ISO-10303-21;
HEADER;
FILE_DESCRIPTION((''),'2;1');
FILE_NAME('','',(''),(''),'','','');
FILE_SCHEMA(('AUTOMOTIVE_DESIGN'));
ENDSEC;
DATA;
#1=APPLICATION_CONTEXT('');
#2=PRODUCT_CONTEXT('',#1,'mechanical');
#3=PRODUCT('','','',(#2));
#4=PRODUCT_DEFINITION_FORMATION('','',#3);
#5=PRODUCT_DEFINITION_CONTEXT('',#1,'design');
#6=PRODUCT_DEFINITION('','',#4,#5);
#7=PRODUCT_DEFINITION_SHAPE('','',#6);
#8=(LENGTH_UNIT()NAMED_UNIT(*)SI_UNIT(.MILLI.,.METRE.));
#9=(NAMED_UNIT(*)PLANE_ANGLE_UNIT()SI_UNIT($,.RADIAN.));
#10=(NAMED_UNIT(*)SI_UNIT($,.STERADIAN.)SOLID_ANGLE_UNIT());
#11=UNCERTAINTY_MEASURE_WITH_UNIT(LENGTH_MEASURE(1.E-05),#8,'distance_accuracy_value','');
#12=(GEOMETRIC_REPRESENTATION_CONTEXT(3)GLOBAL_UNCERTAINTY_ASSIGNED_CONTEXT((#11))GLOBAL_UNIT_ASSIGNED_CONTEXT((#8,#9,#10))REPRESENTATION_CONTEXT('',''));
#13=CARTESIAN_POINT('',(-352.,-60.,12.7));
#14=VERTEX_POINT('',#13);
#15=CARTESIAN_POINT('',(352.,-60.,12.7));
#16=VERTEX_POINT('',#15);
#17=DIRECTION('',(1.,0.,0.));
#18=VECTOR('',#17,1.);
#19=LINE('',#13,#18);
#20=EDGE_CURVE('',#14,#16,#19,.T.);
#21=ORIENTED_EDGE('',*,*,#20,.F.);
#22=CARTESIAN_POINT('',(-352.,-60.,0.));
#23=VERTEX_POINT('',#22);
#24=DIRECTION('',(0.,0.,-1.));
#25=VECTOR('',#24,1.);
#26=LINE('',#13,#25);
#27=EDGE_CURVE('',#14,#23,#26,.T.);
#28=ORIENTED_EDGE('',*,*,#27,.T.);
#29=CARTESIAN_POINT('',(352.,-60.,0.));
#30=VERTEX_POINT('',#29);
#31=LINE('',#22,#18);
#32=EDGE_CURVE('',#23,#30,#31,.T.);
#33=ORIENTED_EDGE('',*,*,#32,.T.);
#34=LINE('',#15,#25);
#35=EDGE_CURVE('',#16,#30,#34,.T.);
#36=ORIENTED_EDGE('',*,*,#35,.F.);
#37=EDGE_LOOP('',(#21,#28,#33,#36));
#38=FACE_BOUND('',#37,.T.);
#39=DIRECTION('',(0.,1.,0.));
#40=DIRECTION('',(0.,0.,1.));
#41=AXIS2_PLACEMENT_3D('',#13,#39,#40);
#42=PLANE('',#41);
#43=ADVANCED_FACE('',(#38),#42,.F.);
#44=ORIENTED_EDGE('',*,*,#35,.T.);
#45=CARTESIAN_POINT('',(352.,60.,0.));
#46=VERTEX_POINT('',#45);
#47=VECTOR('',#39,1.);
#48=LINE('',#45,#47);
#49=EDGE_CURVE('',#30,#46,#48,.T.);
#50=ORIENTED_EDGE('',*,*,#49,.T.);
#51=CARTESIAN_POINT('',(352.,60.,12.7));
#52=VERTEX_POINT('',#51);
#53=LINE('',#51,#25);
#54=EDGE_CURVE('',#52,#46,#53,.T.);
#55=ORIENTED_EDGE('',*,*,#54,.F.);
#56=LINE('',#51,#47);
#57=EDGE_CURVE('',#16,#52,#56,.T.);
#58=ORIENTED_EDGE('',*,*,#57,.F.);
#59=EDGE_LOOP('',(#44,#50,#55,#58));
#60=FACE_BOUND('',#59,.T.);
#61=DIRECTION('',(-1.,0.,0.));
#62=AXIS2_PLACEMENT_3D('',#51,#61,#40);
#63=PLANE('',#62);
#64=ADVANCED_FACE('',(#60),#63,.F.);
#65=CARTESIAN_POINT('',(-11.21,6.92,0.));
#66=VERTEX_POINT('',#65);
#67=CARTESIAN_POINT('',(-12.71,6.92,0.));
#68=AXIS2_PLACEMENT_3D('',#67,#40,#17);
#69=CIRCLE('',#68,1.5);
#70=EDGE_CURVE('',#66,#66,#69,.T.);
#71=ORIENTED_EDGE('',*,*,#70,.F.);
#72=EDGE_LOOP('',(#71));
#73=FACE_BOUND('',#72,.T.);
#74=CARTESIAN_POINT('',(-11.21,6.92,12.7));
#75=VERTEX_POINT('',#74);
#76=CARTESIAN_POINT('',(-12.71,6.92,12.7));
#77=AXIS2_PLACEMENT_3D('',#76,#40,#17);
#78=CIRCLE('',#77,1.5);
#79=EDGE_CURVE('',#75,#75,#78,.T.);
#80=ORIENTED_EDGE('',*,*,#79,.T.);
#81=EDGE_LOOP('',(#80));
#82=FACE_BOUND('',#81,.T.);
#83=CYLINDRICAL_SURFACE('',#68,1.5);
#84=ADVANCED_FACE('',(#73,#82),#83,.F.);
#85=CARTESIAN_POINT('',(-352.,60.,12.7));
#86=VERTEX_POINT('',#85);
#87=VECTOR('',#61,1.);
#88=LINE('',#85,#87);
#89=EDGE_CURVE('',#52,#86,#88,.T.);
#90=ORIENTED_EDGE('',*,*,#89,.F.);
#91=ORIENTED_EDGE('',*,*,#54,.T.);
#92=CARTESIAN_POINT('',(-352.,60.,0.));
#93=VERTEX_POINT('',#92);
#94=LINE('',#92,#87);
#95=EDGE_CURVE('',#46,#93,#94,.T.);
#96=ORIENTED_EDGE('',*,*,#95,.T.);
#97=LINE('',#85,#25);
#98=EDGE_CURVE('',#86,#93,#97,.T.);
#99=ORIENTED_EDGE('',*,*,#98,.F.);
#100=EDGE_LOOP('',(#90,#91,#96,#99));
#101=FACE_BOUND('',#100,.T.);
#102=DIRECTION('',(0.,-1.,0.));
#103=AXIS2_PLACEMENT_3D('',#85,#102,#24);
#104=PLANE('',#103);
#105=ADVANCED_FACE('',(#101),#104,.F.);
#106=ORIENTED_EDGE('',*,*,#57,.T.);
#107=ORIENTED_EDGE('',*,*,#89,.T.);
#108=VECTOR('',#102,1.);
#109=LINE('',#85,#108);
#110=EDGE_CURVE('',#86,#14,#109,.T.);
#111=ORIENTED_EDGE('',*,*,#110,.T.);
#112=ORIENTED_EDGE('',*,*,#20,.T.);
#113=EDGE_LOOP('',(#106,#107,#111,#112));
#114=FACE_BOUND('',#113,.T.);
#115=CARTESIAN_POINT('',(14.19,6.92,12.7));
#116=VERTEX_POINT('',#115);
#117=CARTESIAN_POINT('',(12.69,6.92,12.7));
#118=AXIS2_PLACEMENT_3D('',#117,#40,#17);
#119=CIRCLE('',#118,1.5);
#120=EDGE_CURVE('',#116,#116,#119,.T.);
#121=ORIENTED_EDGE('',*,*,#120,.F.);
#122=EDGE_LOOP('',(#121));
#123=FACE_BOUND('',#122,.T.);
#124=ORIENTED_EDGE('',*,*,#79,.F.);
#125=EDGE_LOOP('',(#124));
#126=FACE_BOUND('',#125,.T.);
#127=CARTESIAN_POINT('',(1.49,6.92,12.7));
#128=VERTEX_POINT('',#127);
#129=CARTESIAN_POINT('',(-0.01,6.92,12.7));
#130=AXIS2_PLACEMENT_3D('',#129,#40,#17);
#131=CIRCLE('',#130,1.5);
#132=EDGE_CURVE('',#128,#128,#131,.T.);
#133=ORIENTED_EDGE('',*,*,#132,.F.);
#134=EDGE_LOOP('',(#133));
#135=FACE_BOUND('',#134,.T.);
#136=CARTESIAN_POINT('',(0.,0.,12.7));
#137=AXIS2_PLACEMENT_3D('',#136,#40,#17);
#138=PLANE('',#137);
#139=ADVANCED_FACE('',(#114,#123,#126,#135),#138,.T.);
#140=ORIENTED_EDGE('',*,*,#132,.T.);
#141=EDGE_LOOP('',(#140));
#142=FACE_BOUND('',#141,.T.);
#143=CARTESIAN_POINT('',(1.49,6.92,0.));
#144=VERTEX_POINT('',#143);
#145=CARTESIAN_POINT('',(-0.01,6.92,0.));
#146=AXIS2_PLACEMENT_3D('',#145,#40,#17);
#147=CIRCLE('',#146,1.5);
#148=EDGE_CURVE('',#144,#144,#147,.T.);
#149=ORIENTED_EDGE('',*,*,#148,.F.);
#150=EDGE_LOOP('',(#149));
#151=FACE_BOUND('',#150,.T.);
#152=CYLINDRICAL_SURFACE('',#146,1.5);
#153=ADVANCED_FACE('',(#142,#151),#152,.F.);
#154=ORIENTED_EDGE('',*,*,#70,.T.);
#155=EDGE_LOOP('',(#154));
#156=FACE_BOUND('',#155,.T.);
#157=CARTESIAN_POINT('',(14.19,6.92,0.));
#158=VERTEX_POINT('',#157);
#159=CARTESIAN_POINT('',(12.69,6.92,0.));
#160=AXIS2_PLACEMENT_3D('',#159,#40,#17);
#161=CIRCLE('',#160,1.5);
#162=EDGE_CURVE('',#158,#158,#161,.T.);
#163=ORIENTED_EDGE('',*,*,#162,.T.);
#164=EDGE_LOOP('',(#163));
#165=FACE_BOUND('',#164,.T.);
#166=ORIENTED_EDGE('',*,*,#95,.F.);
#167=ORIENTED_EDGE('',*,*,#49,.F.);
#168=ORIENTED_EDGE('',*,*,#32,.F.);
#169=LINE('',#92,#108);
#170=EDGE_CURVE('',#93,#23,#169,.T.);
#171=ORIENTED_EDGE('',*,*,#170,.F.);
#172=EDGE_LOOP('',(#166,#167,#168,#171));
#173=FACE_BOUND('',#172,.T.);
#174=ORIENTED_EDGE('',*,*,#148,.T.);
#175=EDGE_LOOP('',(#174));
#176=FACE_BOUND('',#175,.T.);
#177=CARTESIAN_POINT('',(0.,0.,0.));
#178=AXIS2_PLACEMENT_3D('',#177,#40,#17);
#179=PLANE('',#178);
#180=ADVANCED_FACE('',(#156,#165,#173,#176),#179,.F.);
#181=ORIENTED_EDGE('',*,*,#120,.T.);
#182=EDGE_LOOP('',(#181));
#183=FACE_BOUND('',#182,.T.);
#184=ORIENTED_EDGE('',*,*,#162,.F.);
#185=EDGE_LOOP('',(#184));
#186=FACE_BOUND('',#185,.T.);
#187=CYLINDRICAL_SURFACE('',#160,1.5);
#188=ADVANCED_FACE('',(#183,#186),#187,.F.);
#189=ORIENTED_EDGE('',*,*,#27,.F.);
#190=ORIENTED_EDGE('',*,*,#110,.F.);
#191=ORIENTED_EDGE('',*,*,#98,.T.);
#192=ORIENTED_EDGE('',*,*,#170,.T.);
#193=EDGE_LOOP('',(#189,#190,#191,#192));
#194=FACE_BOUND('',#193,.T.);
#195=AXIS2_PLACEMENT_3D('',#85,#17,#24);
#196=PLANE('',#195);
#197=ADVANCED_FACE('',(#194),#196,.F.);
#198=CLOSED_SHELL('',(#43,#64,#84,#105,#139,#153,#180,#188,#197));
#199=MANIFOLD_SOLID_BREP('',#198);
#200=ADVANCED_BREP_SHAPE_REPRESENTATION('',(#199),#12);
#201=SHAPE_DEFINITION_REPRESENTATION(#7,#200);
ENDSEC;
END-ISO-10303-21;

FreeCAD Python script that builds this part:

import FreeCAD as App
import Part
import Sketcher

V = App.Vector

doc = App.newDocument("Part")
body = doc.addObject("PartDesign::Body", "Body")

sketch1 = body.newObject("Sketcher::SketchObject", "Sketch")
sketch1.AttachmentSupport = (doc.getObject("XY_Plane"), [""])
sketch1.MapMode = "FlatFace"
sketch1.addGeometry([
    Part.LineSegment(V(-352, 60, 0), V(-352, -60, 0)),
    Part.LineSegment(V(-352, -60, 0), V(352, -60, 0)),
    Part.LineSegment(V(352, -60, 0), V(352, 60, 0)),
    Part.LineSegment(V(352, 60, 0), V(-352, 60, 0)),
], False)
sketch1.addConstraint([
    Sketcher.Constraint("Coincident", 0, 2, 1, 1),
    Sketcher.Constraint("Coincident", 1, 2, 2, 1),
    Sketcher.Constraint("Coincident", 2, 2, 3, 1),
    Sketcher.Constraint("Coincident", 3, 2, 0, 1),
    Sketcher.Constraint("Vertical", 0),
    Sketcher.Constraint("Horizontal", 1),
    Sketcher.Constraint("Vertical", 2),
    Sketcher.Constraint("Horizontal", 3),
    Sketcher.Constraint("Symmetric", 0, 2, 2, 2, -1, 1),
    Sketcher.Constraint("DistanceX", 1, 1, 1, 2, 704.0),
    Sketcher.Constraint("DistanceY", 0, 2, 0, 1, 120.0),
])
pad1 = body.newObject("PartDesign::Pad", "Pad")
pad1.Profile = sketch1
pad1.Length = 12.7

sketch2 = body.newObject("Sketcher::SketchObject", "Sketch001")
sketch2.AttachmentSupport = (doc.getObject("XY_Plane"), [""])
sketch2.MapMode = "FlatFace"
sketch2.AttachmentOffset = App.Placement(V(0, 0, 12.7), App.Rotation())
sketch2.addGeometry([
    Part.Circle(V(12.69, 6.92, 0), V(0, 0, 1), 1.5),
    Part.Circle(V(-0.01, 6.92, 0), V(0, 0, 1), 1.5),
    Part.Circle(V(-12.71, 6.92, 0), V(0, 0, 1), 1.5),
], False)
sketch2.addConstraint([
    Sketcher.Constraint("Equal", 0, 1),
    Sketcher.Constraint("Equal", 1, 2),
    Sketcher.Constraint("Horizontal", 0, 3, 1, 3),
    Sketcher.Constraint("Horizontal", 1, 3, 2, 3),
    Sketcher.Constraint("Diameter", 0, 3.0),
    Sketcher.Constraint("DistanceX", 1, 3, 0, 3, 12.7),
    Sketcher.Constraint("DistanceX", 2, 3, 1, 3, 12.7),
    Sketcher.Constraint("DistanceX", -1, 1, 0, 3, 12.69),
    Sketcher.Constraint("DistanceY", -1, 1, 0, 3, 6.92),
])
pocket1 = body.newObject("PartDesign::Pocket", "Pocket")
pocket1.Profile = sketch2
pocket1.Type = "ThroughAll"

doc.recompute()
